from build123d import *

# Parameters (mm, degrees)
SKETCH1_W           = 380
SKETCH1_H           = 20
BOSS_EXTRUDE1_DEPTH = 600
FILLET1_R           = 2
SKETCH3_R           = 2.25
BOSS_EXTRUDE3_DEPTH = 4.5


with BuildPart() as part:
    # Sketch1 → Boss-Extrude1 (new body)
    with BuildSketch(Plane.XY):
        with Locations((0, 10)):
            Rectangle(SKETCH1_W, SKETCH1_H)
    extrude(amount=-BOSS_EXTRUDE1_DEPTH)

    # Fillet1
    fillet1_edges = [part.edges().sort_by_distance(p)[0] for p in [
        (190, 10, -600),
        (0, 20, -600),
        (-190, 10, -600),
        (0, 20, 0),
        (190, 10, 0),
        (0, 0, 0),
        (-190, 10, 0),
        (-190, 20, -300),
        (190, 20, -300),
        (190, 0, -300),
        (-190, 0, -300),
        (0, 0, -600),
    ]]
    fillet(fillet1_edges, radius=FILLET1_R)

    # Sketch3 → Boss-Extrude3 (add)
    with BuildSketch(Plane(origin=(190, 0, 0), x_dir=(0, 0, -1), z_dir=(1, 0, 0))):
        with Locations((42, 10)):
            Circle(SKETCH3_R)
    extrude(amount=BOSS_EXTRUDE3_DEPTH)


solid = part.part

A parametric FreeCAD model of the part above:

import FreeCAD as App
import Part
import Sketcher


def add_polygon(sketch, points):
    """Adds a closed chain of lines whose ends are joined by coincident constraints."""
    first, n = sketch.GeometryCount, len(points)
    for a, b in zip(points, points[1:] + points[:1]):
        sketch.addGeometry(Part.LineSegment(App.Vector(*a, 0), App.Vector(*b, 0)), False)
    for i in range(n):
        sketch.addConstraint(Sketcher.Constraint("Coincident", first + i, 2, first + (i + 1) % n, 1))

doc = App.newDocument("Part")
body = doc.addObject("PartDesign::Body", "Body")

# Sketch on XY plane
sketch1 = body.newObject("Sketcher::SketchObject", "Sketch")
sketch1.AttachmentSupport = (doc.getObject("XY_Plane"), [""])
sketch1.MapMode = "FlatFace"
add_polygon(sketch1, [(-190, 20), (-190, 0), (190, 0), (190, 20)])  # lines 0-3
sketch1.addConstraint(Sketcher.Constraint("Vertical", 0))
sketch1.addConstraint(Sketcher.Constraint("Horizontal", 1))
sketch1.addConstraint(Sketcher.Constraint("Vertical", 2))
sketch1.addConstraint(Sketcher.Constraint("Horizontal", 3))
sketch1.addConstraint(Sketcher.Constraint("Symmetric", 0, 2, 1, 2, -1, 1))
sketch1.addConstraint(Sketcher.Constraint("DistanceX", 1, 1, 1, 2, 380.0))
sketch1.addConstraint(Sketcher.Constraint("DistanceY", 0, 2, 0, 1, 20.0))
pad1 = body.newObject("PartDesign::Pad", "Pad")
pad1.Profile = sketch1
pad1.Length = 600
pad1.Reversed = True
doc.recompute()

fillet = body.newObject("PartDesign::Fillet", "Fillet")
fillet.Base = (pad1, ["Edge1"])
fillet.UseAllEdges = True
fillet.Radius = 2

# Sketch on YZ plane
sketch2 = body.newObject("Sketcher::SketchObject", "Sketch001")
sketch2.AttachmentSupport = (doc.getObject("YZ_Plane"), [""])
sketch2.MapMode = "FlatFace"
sketch2.AttachmentOffset = App.Placement(App.Vector(0, 0, 190), App.Rotation())
sketch2.addGeometry(Part.Circle(App.Vector(10, -42, 0), App.Vector(0, 0, 1), 2.2), False)
sketch2.addConstraint(Sketcher.Constraint("Diameter", 0, 4.5))
sketch2.addConstraint(Sketcher.Constraint("DistanceX", -1, 1, 0, 3, 10.0))
sketch2.addConstraint(Sketcher.Constraint("DistanceY", 0, 3, -1, 1, 42.0))
pad2 = body.newObject("PartDesign::Pad", "Pad001")
pad2.Profile = sketch2
pad2.Length = 4.5

doc.recompute()
